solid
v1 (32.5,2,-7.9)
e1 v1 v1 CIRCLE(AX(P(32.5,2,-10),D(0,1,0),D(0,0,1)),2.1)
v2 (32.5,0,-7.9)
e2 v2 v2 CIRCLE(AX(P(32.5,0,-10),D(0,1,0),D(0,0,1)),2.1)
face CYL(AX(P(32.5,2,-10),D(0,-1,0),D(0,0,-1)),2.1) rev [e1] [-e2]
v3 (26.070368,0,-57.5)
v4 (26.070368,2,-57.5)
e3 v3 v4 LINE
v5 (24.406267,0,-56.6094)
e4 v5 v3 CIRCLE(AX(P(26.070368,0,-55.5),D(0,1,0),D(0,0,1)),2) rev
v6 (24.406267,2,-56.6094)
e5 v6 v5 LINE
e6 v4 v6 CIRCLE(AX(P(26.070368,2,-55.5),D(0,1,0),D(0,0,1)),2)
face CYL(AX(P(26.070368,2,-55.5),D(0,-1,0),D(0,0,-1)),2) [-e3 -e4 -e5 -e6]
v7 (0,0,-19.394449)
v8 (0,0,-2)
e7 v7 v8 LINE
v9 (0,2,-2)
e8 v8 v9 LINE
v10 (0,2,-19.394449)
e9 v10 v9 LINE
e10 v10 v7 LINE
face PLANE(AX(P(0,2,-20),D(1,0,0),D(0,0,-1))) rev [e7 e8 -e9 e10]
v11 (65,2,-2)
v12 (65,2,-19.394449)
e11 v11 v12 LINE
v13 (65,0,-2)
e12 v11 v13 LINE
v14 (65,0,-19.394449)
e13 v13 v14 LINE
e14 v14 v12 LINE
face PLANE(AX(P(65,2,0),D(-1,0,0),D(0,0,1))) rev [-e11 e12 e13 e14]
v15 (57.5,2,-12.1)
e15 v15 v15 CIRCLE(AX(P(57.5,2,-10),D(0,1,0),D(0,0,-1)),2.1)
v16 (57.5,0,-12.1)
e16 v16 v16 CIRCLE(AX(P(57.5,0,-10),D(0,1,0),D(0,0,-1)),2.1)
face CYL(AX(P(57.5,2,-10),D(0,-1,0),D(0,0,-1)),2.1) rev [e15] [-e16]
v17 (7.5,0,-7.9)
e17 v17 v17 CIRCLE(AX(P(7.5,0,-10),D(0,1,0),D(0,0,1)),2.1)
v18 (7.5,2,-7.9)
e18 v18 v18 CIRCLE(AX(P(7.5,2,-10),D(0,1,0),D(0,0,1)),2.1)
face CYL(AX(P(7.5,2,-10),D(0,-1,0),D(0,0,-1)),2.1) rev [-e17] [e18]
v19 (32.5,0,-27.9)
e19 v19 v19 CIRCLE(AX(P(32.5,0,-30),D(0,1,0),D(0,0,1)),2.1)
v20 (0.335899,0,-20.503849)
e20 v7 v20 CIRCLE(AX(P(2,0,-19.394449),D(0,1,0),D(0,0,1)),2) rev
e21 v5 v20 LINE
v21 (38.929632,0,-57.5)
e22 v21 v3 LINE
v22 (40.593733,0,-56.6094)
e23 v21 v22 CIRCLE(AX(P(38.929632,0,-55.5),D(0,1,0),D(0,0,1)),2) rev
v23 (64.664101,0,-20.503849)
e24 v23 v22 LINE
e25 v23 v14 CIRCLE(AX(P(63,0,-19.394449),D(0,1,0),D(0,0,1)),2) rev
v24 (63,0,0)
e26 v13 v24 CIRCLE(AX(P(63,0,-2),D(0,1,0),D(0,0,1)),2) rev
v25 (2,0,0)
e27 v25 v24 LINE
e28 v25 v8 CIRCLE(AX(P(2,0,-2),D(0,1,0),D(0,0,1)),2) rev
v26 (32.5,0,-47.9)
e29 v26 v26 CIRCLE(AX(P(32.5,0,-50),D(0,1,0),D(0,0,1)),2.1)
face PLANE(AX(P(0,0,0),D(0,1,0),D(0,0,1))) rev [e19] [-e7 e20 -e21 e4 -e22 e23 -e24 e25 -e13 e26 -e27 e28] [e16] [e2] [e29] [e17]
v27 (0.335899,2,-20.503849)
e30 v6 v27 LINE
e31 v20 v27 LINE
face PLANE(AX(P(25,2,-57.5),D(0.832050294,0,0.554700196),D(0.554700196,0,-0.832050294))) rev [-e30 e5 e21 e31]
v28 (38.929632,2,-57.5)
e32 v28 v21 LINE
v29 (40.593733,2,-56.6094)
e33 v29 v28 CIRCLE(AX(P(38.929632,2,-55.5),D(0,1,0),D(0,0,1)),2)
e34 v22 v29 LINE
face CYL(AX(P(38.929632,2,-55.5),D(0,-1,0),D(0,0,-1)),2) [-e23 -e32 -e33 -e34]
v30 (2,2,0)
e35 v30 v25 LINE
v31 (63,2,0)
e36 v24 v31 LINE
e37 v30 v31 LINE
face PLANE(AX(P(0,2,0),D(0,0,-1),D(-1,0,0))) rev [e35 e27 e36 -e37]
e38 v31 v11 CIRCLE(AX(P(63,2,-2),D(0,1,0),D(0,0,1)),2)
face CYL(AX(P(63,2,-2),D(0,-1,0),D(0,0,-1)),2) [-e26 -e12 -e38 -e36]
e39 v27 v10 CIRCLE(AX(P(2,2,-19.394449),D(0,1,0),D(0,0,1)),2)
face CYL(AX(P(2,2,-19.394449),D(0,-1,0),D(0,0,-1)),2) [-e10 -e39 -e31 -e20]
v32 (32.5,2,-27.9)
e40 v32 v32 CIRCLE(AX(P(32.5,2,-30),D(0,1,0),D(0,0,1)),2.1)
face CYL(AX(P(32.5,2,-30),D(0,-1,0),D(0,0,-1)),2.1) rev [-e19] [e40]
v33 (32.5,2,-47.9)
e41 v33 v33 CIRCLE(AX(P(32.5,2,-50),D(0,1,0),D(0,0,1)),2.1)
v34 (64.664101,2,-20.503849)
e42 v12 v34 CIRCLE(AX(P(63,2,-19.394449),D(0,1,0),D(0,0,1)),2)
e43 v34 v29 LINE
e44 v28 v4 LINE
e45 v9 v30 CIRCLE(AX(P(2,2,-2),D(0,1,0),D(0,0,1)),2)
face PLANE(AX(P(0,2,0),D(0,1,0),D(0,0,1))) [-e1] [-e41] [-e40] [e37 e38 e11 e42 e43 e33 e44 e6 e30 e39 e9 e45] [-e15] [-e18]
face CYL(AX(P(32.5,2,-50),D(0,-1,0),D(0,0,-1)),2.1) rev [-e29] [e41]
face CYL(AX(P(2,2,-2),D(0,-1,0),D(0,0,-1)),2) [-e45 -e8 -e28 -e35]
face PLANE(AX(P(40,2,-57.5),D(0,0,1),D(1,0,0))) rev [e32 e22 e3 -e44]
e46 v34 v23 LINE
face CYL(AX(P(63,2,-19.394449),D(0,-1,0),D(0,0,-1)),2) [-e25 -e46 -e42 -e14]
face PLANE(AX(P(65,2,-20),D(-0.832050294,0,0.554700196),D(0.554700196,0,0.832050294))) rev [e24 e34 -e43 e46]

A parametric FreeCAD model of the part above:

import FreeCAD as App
import Part
import Sketcher
Q = App.Units.Quantity


def edges_at(feature, points):
    """Names of the edges that pass closest to the given points."""
    edges = feature.Shape.Edges
    near = lambda p: min(range(len(edges)), key=lambda i: edges[i].distToShape(Part.Vertex(*p))[0])
    return sorted({f"Edge{near(p) + 1}" for p in points})


def add_polygon(sketch, points):
    """Adds a closed chain of lines whose ends are joined by coincident constraints."""
    first, n = sketch.GeometryCount, len(points)
    for a, b in zip(points, points[1:] + points[:1]):
        sketch.addGeometry(Part.LineSegment(App.Vector(*a, 0), App.Vector(*b, 0)), False)
    for i in range(n):
        sketch.addConstraint(Sketcher.Constraint("Coincident", first + i, 2, first + (i + 1) % n, 1))

doc = App.newDocument("Part")
body = doc.addObject("PartDesign::Body", "Body")

# Sketch on XZ plane
sketch1 = doc.addObject("Sketcher::SketchObject", "Sketch")
body.addObject(sketch1)
sketch1.AttachmentSupport = (doc.XZ_Plane, [""])
sketch1.MapMode = "FlatFace"
add_polygon(sketch1, [(0, 0), (65, 0), (65, -20), (40, -57.5), (25, -57.5), (0, -20)])  # lines 0-5
sketch1.addGeometry(Part.Circle(App.Vector(7.5, -10, 0), App.Vector(0, 0, 1), 2.1), False)  # 6
sketch1.addGeometry(Part.Circle(App.Vector(32.5, -10, 0), App.Vector(0, 0, 1), 2.1), False)  # 7
sketch1.addGeometry(Part.Circle(App.Vector(57.5, -10, 0), App.Vector(0, 0, 1), 2.1), False)  # 8
sketch1.addGeometry(Part.Circle(App.Vector(32.5, -30, 0), App.Vector(0, 0, 1), 2.1), False)  # 9
sketch1.addGeometry(Part.Circle(App.Vector(32.5, -50, 0), App.Vector(0, 0, 1), 2.1), False)  # 10
sketch1.addConstraint([
    Sketcher.Constraint("Horizontal", 0),
    Sketcher.Constraint("Vertical", 1),
    Sketcher.Constraint("Horizontal", 3),
    Sketcher.Constraint("Vertical", 5),
    Sketcher.Constraint("Coincident", 5, 2, -1, 1),
    Sketcher.Constraint("Equal", 6, 7),
    Sketcher.Constraint("Equal", 7, 8),
    Sketcher.Constraint("Equal", 8, 9),
    Sketcher.Constraint("Equal", 9, 10),
    Sketcher.Constraint("Horizontal", 6, 3, 7, 3),
    Sketcher.Constraint("Horizontal", 7, 3, 8, 3),
    Sketcher.Constraint("Horizontal", 1, 2, 4, 2),
    Sketcher.Constraint("Vertical", 7, 3, 9, 3),
    Sketcher.Constraint("Vertical", 9, 3, 10, 3),
    Sketcher.Constraint("Equal", 2, 4),
    Sketcher.Constraint("Diameter", 6, Q("4.2 mm")),
    Sketcher.Constraint("DistanceX", 0, 1, 0, 2, Q("65 mm")),
    Sketcher.Constraint("DistanceX", 3, 2, 3, 1, Q("15 mm")),
    Sketcher.Constraint("DistanceY", 1, 2, 1, 1, Q("20 mm")),
    Sketcher.Constraint("DistanceY", 6, 3, -1, 1, Q("10 mm")),
    Sketcher.Constraint("DistanceY", 9, 3, -1, 1, Q("30 mm")),
    Sketcher.Constraint("DistanceY", 10, 3, -1, 1, Q("50 mm")),
    Sketcher.Constraint("DistanceX", 6, 3, 7, 3, Q("25 mm")),
    Sketcher.Constraint("DistanceX", 7, 3, 8, 3, Q("25 mm")),
    Sketcher.Constraint("DistanceX", -1, 1, 6, 3, Q("7.5 mm")),
    Sketcher.Constraint("DistanceY", 2, 2, -1, 1, Q("57.5 mm")),
])
pad1 = doc.addObject("PartDesign::Pad", "Pad")
body.addObject(pad1)
pad1.Profile = sketch1
pad1.Length = 2
pad1.Reversed = True
doc.recompute()

fillet = doc.addObject("PartDesign::Fillet", "Fillet")
body.addObject(fillet)
fillet.Base = (pad1, edges_at(pad1, [
    (0, 1, -20),
    (25, 1, -57.5),
    (40, 1, -57.5),
    (65, 1, -20),
    (65, 1, 0),
    (0, 1, 0),
]))
fillet.Radius = 2

doc.recompute()
